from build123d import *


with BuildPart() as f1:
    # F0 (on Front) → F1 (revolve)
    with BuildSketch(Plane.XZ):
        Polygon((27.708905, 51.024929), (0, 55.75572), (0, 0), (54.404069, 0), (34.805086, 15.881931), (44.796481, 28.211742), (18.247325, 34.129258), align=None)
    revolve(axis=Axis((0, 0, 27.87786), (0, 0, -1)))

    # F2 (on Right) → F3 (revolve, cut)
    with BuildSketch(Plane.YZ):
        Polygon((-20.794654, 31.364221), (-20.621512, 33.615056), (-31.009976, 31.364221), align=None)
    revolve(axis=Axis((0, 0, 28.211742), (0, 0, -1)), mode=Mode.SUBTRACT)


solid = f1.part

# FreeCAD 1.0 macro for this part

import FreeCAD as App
import Part
import Sketcher

doc = App.newDocument("Part")
body = doc.addObject("PartDesign::Body", "Body")

sketch1 = doc.addObject("Sketcher::SketchObject", "Sketch")
body.addObject(sketch1)
sketch1.AttachmentSupport = (doc.XZ_Plane, [""])
sketch1.MapMode = "FlatFace"
sketch1.addGeometry([
    Part.LineSegment(App.Vector(28, 51, 0), App.Vector(0, 56, 0)),
    Part.LineSegment(App.Vector(0, 56, 0), App.Vector(0, 0, 0)),
    Part.LineSegment(App.Vector(0, 0, 0), App.Vector(54, 0, 0)),
    Part.LineSegment(App.Vector(54, 0, 0), App.Vector(35, 16, 0)),
    Part.LineSegment(App.Vector(35, 16, 0), App.Vector(45, 28, 0)),
    Part.LineSegment(App.Vector(45, 28, 0), App.Vector(18, 34, 0)),
    Part.LineSegment(App.Vector(18, 34, 0), App.Vector(28, 51, 0)),
], False)
sketch1.addConstraint([
    Sketcher.Constraint("Coincident", 0, 2, 1, 1),
    Sketcher.Constraint("Coincident", 1, 2, 2, 1),
    Sketcher.Constraint("Coincident", 2, 2, 3, 1),
    Sketcher.Constraint("Coincident", 3, 2, 4, 1),
    Sketcher.Constraint("Coincident", 4, 2, 5, 1),
    Sketcher.Constraint("Coincident", 5, 2, 6, 1),
    Sketcher.Constraint("Coincident", 6, 2, 0, 1),
    Sketcher.Constraint("Vertical", 1),
    Sketcher.Constraint("Horizontal", 2),
    Sketcher.Constraint("Coincident", 1, 2, -1, 1),
    Sketcher.Constraint("Perpendicular", 3, 4),
    Sketcher.Constraint("DistanceX", 2, 1, 2, 2, 54.404069),
    Sketcher.Constraint("DistanceY", 1, 2, 1, 1, 55.75572),
    Sketcher.Constraint("DistanceY", -1, 1, 3, 2, 15.881931),
    Sketcher.Constraint("DistanceX", -1, 1, 4, 2, 44.796481),
    Sketcher.Constraint("DistanceY", -1, 1, 6, 2, 51.024929),
    Sketcher.Constraint("DistanceY", 3, 2, 4, 2, 12.329811),
    Sketcher.Constraint("DistanceX", 5, 2, 3, 2, 16.557761),
    Sketcher.Constraint("DistanceY", 5, 2, 0, 2, 21.626462),
    Sketcher.Constraint("DistanceX", 5, 2, 6, 2, 9.46158),
])
revolution = doc.addObject("PartDesign::Revolution", "Revolution")
body.addObject(revolution)
revolution.Profile = sketch1
revolution.ReferenceAxis = (sketch1, ["V_Axis"])
revolution.Angle = 360

sketch2 = doc.addObject("Sketcher::SketchObject", "Sketch001")
body.addObject(sketch2)
sketch2.AttachmentSupport = (doc.YZ_Plane, [""])
sketch2.MapMode = "FlatFace"
sketch2.addGeometry([
    Part.LineSegment(App.Vector(-20.8, 31.4, 0), App.Vector(-20.6, 33.6, 0)),
    Part.LineSegment(App.Vector(-20.6, 33.6, 0), App.Vector(-31, 31.4, 0)),
    Part.LineSegment(App.Vector(-31, 31.4, 0), App.Vector(-20.8, 31.4, 0)),
], False)
sketch2.addConstraint([
    Sketcher.Constraint("Coincident", 0, 2, 1, 1),
    Sketcher.Constraint("Coincident", 1, 2, 2, 1),
    Sketcher.Constraint("Coincident", 2, 2, 0, 1),
    Sketcher.Constraint("Horizontal", 2),
    Sketcher.Constraint("Distance", 1, 10.629508),
    Sketcher.Constraint("DistanceX", 2, 1, 2, 2, 10.215322),
    Sketcher.Constraint("DistanceX", 0, 2, -1, 1, 20.621512),
    Sketcher.Constraint("DistanceY", -1, 1, 1, 2, 31.364221),
    Sketcher.Constraint("Distance", 0, 2.257485),
])
groove = doc.addObject("PartDesign::Groove", "Groove")
body.addObject(groove)
groove.Profile = sketch2
groove.ReferenceAxis = (sketch2, ["V_Axis"])
groove.Angle = 360

doc.recompute()
